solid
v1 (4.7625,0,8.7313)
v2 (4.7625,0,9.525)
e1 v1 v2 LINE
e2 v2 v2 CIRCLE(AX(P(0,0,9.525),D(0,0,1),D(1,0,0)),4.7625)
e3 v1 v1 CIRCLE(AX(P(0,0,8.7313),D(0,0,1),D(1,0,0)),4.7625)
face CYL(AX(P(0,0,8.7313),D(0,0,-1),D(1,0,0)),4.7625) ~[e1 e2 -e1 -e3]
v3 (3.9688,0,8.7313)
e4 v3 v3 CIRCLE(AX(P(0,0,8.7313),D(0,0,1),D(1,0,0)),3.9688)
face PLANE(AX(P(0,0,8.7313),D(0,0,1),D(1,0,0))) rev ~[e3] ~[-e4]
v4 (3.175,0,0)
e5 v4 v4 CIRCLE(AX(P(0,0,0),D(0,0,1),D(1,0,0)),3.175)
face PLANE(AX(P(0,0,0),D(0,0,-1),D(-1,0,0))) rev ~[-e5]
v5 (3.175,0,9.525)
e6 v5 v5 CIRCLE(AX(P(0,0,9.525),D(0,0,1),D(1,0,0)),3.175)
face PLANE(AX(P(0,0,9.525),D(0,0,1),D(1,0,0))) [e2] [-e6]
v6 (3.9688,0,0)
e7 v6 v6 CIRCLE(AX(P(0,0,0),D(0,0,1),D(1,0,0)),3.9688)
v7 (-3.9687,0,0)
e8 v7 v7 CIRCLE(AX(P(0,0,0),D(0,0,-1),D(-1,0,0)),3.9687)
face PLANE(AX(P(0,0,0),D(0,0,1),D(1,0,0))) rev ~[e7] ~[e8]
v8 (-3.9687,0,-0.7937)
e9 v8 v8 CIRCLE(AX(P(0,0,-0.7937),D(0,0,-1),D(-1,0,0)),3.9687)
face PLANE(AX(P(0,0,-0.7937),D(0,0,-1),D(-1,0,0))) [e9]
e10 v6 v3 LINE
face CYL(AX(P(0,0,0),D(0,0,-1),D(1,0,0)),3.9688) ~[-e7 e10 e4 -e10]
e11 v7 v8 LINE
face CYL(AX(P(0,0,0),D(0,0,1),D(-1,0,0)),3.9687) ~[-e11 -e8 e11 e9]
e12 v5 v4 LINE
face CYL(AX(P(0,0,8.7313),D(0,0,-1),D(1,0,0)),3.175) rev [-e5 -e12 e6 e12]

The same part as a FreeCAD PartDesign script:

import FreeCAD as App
import Part
import Sketcher
from FreeCAD import Vector
Q = App.Units.Quantity

doc = App.newDocument("Part")
body = doc.addObject("PartDesign::Body", "Body")

sketch1 = doc.addObject("Sketcher::SketchObject", "Sketch")
body.addObject(sketch1)
sketch1.AttachmentSupport = (doc.XY_Plane, [""])
sketch1.MapMode = "FlatFace"
sketch1.addGeometry(Part.Circle(Vector(0, 0, 0), Vector(0, 0, 1), 4), False)
sketch1.addGeometry(Part.Circle(Vector(0, 0, 0), Vector(0, 0, 1), 3.2), False)
sketch1.addConstraint(Sketcher.Constraint("Coincident", 0, 3, -1, 1))
sketch1.addConstraint(Sketcher.Constraint("Coincident", 1, 3, -1, 1))
sketch1.addConstraint(Sketcher.Constraint("Diameter", 1, Q("0.25 in")))
sketch1.addConstraint(Sketcher.Constraint("Diameter", 0, Q("0.3125 in")))
pad1 = doc.addObject("PartDesign::Pad", "Pad")
body.addObject(pad1)
pad1.Profile = sketch1
pad1.Length = Q("0.343752 in")

sketch2 = doc.addObject("Sketcher::SketchObject", "Sketch001")
body.addObject(sketch2)
sketch2.AttachmentSupport = (doc.XY_Plane, [""])
sketch2.MapMode = "FlatFace"
sketch2.addGeometry(Part.Circle(Vector(0, 0, 0), Vector(0, 0, 1), 4), False)
sketch2.addConstraint(Sketcher.Constraint("Coincident", 0, 3, -1, 1))
sketch2.addConstraint(Sketcher.Constraint("Diameter", 0, Q("0.3125 in")))
pad2 = doc.addObject("PartDesign::Pad", "Pad001")
body.addObject(pad2)
pad2.Profile = sketch2
pad2.Length = Q("0.031248 in")
pad2.Reversed = True

sketch3 = doc.addObject("Sketcher::SketchObject", "Sketch002")
body.addObject(sketch3)
sketch3.AttachmentSupport = (doc.XY_Plane, [""])
sketch3.MapMode = "FlatFace"
sketch3.AttachmentOffset = App.Placement(Vector(0, 0, 0.343752 * 25.4), App.Rotation())
sketch3.addGeometry(Part.Circle(Vector(0, 0, 0), Vector(0, 0, 1), 4.8), False)
sketch3.addGeometry(Part.Circle(Vector(0, 0, 0), Vector(0, 0, 1), 3.2), False)
sketch3.addConstraint(Sketcher.Constraint("Coincident", 0, 3, -1, 1))
sketch3.addConstraint(Sketcher.Constraint("Coincident", 1, 3, -1, 1))
sketch3.addConstraint(Sketcher.Constraint("Diameter", 0, Q("0.375 in")))
sketch3.addConstraint(Sketcher.Constraint("Diameter", 1, Q("0.25 in")))
pad3 = doc.addObject("PartDesign::Pad", "Pad002")
body.addObject(pad3)
pad3.Profile = sketch3
pad3.Length = Q("0.031248 in")

doc.recompute()
